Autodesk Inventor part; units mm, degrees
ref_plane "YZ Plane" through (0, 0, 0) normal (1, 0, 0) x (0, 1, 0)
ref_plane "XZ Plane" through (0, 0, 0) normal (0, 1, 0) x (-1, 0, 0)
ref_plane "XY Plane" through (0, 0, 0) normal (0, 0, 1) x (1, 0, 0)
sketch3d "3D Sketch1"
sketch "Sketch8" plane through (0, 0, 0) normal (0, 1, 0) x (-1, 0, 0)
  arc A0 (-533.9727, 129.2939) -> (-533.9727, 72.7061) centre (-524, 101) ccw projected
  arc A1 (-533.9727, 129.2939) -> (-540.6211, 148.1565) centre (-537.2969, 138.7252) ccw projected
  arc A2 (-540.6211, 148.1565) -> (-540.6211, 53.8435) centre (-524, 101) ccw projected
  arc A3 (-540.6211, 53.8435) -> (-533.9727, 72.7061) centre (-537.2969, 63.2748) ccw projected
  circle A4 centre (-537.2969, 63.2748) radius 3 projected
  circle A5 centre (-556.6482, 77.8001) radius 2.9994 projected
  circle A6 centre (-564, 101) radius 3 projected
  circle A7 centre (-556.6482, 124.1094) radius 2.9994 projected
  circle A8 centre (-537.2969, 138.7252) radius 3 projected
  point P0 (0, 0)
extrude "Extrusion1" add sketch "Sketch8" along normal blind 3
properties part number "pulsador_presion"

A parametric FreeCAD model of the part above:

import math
import FreeCAD as App
import Part
import Sketcher

V = App.Vector
Q = App.Units.Quantity

doc = App.newDocument("Part")
body = doc.addObject("PartDesign::Body", "Body")

sketch1 = doc.addObject("Sketcher::SketchObject", "Sketch")
body.addObject(sketch1)
sketch1.AttachmentSupport = (doc.XZ_Plane, [""])
sketch1.MapMode = "FlatFace"
sketch1.addGeometry(Part.ArcOfCircle(Part.Circle(V(524, 101, 0), V(0, 0, 1), 30), math.radians(-71), math.radians(71)), False)
sketch1.addGeometry(Part.ArcOfCircle(Part.Circle(V(537.3, 138.7, 0), V(0, 0, 1), 10), math.radians(71), math.radians(251)), False)
sketch1.addGeometry(Part.ArcOfCircle(Part.Circle(V(524, 101, 0), V(0, 0, 1), 50), math.radians(-71), math.radians(71)), False)
sketch1.addGeometry(Part.ArcOfCircle(Part.Circle(V(537.3, 63.3, 0), V(0, 0, 1), 10), math.radians(109), math.radians(289)), False)
sketch1.addGeometry(Part.Circle(V(564, 101, 0), V(0, 0, 1), 3), False)
sketch1.addGeometry(Part.Circle(V(556.6, 77.8, 0), V(0, 0, 1), 3), False)
sketch1.addGeometry(Part.Circle(V(537.3, 63.3, 0), V(0, 0, 1), 3), False)
sketch1.addGeometry(Part.Circle(V(556.6, 124.1, 0), V(0, 0, 1), 3), False)
sketch1.addGeometry(Part.Circle(V(537.3, 138.7, 0), V(0, 0, 1), 3), False)
sketch1.addConstraint(Sketcher.Constraint("Tangent", 0, 2, 1, 2))
sketch1.addConstraint(Sketcher.Constraint("Tangent", 1, 1, 2, 2))
sketch1.addConstraint(Sketcher.Constraint("Tangent", 2, 1, 3, 2))
sketch1.addConstraint(Sketcher.Constraint("Tangent", 3, 1, 0, 1))
sketch1.addConstraint(Sketcher.Constraint("Coincident", 2, 3, 0, 3))
sketch1.addConstraint(Sketcher.Constraint("Coincident", 6, 3, 3, 3))
sketch1.addConstraint(Sketcher.Constraint("Coincident", 8, 3, 1, 3))
sketch1.addConstraint(Sketcher.Constraint("Equal", 4, 6))
sketch1.addConstraint(Sketcher.Constraint("Equal", 5, 7))
sketch1.addConstraint(Sketcher.Constraint("Equal", 6, 8))
sketch1.addConstraint(Sketcher.Constraint("Horizontal", 2, 3, 4, 3))
sketch1.addConstraint(Sketcher.Constraint("Vertical", 1, 3, 3, 3))
sketch1.addConstraint(Sketcher.Constraint("Vertical", 5, 3, 7, 3))
sketch1.addConstraint(Sketcher.Constraint("Diameter", 4, Q("6 mm")))
sketch1.addConstraint(Sketcher.Constraint("Radius", 0, Q("30 mm")))
sketch1.addConstraint(Sketcher.Constraint("Radius", 1, Q("10 mm")))
sketch1.addConstraint(Sketcher.Constraint("DistanceX", -1, 1, 0, 3, Q("524 mm")))
sketch1.addConstraint(Sketcher.Constraint("DistanceY", -1, 1, 0, 3, Q("101 mm")))
sketch1.addConstraint(Sketcher.Constraint("DistanceX", -1, 1, 4, 3, Q("564 mm")))
sketch1.addConstraint(Sketcher.Constraint("Diameter", 5, Q("5.9988 mm")))
sketch1.addConstraint(Sketcher.Constraint("DistanceY", -1, 1, 5, 3, Q("77.8 mm")))
sketch1.addConstraint(Sketcher.Constraint("DistanceX", -1, 1, 1, 3, Q("537.297 mm")))
sketch1.addConstraint(Sketcher.Constraint("DistanceX", 1, 1, 7, 3, Q("16.027 mm")))
sketch1.addConstraint(Sketcher.Constraint("DistanceY", 7, 3, 1, 1, Q("24.047 mm")))
pad1 = doc.addObject("PartDesign::Pad", "Pad")
body.addObject(pad1)
pad1.Profile = sketch1
pad1.Length = 3
pad1.Reversed = True

doc.recompute()
